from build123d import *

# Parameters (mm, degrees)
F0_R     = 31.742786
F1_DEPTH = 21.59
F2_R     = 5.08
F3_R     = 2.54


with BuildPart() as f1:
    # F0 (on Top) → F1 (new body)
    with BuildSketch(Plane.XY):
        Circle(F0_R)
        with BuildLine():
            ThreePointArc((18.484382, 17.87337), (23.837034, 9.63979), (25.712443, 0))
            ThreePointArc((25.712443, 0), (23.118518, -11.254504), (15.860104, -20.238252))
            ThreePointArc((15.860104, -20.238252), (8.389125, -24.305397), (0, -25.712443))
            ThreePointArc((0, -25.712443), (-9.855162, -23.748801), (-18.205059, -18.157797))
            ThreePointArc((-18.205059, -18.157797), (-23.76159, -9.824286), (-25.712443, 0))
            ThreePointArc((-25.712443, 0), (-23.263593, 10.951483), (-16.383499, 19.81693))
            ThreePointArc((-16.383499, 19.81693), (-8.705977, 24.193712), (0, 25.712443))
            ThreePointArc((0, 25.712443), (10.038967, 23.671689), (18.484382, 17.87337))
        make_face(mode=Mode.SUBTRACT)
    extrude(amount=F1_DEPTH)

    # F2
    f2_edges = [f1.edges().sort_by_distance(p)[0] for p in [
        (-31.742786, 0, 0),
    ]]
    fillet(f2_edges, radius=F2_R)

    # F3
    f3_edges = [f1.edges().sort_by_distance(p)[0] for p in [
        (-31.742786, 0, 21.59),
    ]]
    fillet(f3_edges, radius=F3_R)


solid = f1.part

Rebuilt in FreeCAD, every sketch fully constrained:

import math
import FreeCAD as App
import Part
import Sketcher
from FreeCAD import Vector
Q = App.Units.Quantity


def edges_at(feature, points):
    """Names of the edges that pass closest to the given points."""
    edges = feature.Shape.Edges
    near = lambda p: min(range(len(edges)), key=lambda i: edges[i].distToShape(Part.Vertex(*p))[0])
    return sorted({f"Edge{near(p) + 1}" for p in points})

doc = App.newDocument("Part")
body = doc.addObject("PartDesign::Body", "Body")

sketch1 = body.newObject("Sketcher::SketchObject", "Sketch")
sketch1.AttachmentSupport = (doc.getObject("XY_Plane"), [""])
sketch1.MapMode = "FlatFace"
sketch1.addGeometry(Part.Circle(Vector(0, 0, 0), Vector(0, 0, 1), 31.742786), False)
sketch1.addGeometry(Part.ArcOfCircle(Part.Circle(Vector(-0.000001, -0.000002, 0), Vector(0, 0, 1), 25.712445), math.radians(44.037206), math.radians(89.999998)), False)
sketch1.addGeometry(Part.ArcOfCircle(Part.Circle(Vector(0.000003, 0.000001, 0), Vector(0, 0, 1), 25.71244), math.radians(-0.000003), math.radians(44.037206)), False)
sketch1.addGeometry(Part.ArcOfCircle(Part.Circle(Vector(0, 0, 0), Vector(0, 0, 1), 25.712443), math.radians(-51.915277), math.radians(0.000001)), False)
sketch1.addGeometry(Part.ArcOfCircle(Part.Circle(Vector(0.000001, -0.000002, 0), Vector(0, 0, 1), 25.712441), math.radians(-90.000003), math.radians(-51.915277)), False)
sketch1.addGeometry(Part.ArcOfCircle(Part.Circle(Vector(-0.000003, -0.000005, 0), Vector(0, 0, 1), 25.712438), math.radians(-135.074472), math.radians(-89.999993)), False)
sketch1.addGeometry(Part.ArcOfCircle(Part.Circle(Vector(-0.000002, -0.000002, 0), Vector(0, 0, 1), 25.712441), math.radians(179.999996), math.radians(224.925531)), False)
sketch1.addGeometry(Part.ArcOfCircle(Part.Circle(Vector(0, 0.000001, 0), Vector(0, 0, 1), 25.712443), math.radians(129.581988), math.radians(180.000001)), False)
sketch1.addGeometry(Part.ArcOfCircle(Part.Circle(Vector(0, -0.000001, 0), Vector(0, 0, 1), 25.712444), math.radians(89.999999), math.radians(129.581984)), False)
sketch1.addConstraint(Sketcher.Constraint("Tangent", 1, 1, 2, 2))
sketch1.addConstraint(Sketcher.Constraint("Tangent", 2, 1, 3, 2))
sketch1.addConstraint(Sketcher.Constraint("Tangent", 3, 1, 4, 2))
sketch1.addConstraint(Sketcher.Constraint("Tangent", 4, 1, 5, 2))
sketch1.addConstraint(Sketcher.Constraint("Tangent", 5, 1, 6, 2))
sketch1.addConstraint(Sketcher.Constraint("Tangent", 6, 1, 7, 2))
sketch1.addConstraint(Sketcher.Constraint("Tangent", 7, 1, 8, 2))
sketch1.addConstraint(Sketcher.Constraint("Tangent", 8, 1, 1, 2))
sketch1.addConstraint(Sketcher.Constraint("Coincident", 0, 3, -1, 1))
sketch1.addConstraint(Sketcher.Constraint("Coincident", 1, 3, -1, 1))
sketch1.addConstraint(Sketcher.Constraint("Coincident", 3, 3, -1, 1))
sketch1.addConstraint(Sketcher.Constraint("Coincident", 5, 3, -1, 1))
sketch1.addConstraint(Sketcher.Constraint("Equal", 4, 6))
sketch1.addConstraint(Sketcher.Constraint("PointOnObject", 2, 1, -1))
sketch1.addConstraint(Sketcher.Constraint("PointOnObject", 4, 1, -2))
sketch1.addConstraint(Sketcher.Constraint("PointOnObject", 6, 1, -1))
sketch1.addConstraint(Sketcher.Constraint("PointOnObject", 8, 1, -2))
sketch1.addConstraint(Sketcher.Constraint("Diameter", 0, 63.485572))
sketch1.addConstraint(Sketcher.Constraint("Radius", 2, 25.71244))
sketch1.addConstraint(Sketcher.Constraint("DistanceX", 7, 1, -1, 1, 16.383499))
sketch1.addConstraint(Sketcher.Constraint("DistanceY", -1, 1, 1, 1, 17.87337))
sketch1.addConstraint(Sketcher.Constraint("DistanceX", 5, 1, -1, 1, 18.205059))
sketch1.addConstraint(Sketcher.Constraint("DistanceX", 3, 1, 2, 1, 9.852339))
pad1 = body.newObject("PartDesign::Pad", "Pad")
pad1.Profile = sketch1
pad1.Length = Q("0.85 in")
doc.recompute()

fillet = body.newObject("PartDesign::Fillet", "Fillet")
fillet.Base = (pad1, edges_at(pad1, [(-31.743, 0, 0)]))
fillet.Radius = Q("0.2 in")
doc.recompute()

fillet2 = body.newObject("PartDesign::Fillet", "Fillet001")
fillet2.Base = (fillet, edges_at(fillet, [(-31.743, 0, 21.59)]))
fillet2.Radius = Q("0.1 in")

doc.recompute()
